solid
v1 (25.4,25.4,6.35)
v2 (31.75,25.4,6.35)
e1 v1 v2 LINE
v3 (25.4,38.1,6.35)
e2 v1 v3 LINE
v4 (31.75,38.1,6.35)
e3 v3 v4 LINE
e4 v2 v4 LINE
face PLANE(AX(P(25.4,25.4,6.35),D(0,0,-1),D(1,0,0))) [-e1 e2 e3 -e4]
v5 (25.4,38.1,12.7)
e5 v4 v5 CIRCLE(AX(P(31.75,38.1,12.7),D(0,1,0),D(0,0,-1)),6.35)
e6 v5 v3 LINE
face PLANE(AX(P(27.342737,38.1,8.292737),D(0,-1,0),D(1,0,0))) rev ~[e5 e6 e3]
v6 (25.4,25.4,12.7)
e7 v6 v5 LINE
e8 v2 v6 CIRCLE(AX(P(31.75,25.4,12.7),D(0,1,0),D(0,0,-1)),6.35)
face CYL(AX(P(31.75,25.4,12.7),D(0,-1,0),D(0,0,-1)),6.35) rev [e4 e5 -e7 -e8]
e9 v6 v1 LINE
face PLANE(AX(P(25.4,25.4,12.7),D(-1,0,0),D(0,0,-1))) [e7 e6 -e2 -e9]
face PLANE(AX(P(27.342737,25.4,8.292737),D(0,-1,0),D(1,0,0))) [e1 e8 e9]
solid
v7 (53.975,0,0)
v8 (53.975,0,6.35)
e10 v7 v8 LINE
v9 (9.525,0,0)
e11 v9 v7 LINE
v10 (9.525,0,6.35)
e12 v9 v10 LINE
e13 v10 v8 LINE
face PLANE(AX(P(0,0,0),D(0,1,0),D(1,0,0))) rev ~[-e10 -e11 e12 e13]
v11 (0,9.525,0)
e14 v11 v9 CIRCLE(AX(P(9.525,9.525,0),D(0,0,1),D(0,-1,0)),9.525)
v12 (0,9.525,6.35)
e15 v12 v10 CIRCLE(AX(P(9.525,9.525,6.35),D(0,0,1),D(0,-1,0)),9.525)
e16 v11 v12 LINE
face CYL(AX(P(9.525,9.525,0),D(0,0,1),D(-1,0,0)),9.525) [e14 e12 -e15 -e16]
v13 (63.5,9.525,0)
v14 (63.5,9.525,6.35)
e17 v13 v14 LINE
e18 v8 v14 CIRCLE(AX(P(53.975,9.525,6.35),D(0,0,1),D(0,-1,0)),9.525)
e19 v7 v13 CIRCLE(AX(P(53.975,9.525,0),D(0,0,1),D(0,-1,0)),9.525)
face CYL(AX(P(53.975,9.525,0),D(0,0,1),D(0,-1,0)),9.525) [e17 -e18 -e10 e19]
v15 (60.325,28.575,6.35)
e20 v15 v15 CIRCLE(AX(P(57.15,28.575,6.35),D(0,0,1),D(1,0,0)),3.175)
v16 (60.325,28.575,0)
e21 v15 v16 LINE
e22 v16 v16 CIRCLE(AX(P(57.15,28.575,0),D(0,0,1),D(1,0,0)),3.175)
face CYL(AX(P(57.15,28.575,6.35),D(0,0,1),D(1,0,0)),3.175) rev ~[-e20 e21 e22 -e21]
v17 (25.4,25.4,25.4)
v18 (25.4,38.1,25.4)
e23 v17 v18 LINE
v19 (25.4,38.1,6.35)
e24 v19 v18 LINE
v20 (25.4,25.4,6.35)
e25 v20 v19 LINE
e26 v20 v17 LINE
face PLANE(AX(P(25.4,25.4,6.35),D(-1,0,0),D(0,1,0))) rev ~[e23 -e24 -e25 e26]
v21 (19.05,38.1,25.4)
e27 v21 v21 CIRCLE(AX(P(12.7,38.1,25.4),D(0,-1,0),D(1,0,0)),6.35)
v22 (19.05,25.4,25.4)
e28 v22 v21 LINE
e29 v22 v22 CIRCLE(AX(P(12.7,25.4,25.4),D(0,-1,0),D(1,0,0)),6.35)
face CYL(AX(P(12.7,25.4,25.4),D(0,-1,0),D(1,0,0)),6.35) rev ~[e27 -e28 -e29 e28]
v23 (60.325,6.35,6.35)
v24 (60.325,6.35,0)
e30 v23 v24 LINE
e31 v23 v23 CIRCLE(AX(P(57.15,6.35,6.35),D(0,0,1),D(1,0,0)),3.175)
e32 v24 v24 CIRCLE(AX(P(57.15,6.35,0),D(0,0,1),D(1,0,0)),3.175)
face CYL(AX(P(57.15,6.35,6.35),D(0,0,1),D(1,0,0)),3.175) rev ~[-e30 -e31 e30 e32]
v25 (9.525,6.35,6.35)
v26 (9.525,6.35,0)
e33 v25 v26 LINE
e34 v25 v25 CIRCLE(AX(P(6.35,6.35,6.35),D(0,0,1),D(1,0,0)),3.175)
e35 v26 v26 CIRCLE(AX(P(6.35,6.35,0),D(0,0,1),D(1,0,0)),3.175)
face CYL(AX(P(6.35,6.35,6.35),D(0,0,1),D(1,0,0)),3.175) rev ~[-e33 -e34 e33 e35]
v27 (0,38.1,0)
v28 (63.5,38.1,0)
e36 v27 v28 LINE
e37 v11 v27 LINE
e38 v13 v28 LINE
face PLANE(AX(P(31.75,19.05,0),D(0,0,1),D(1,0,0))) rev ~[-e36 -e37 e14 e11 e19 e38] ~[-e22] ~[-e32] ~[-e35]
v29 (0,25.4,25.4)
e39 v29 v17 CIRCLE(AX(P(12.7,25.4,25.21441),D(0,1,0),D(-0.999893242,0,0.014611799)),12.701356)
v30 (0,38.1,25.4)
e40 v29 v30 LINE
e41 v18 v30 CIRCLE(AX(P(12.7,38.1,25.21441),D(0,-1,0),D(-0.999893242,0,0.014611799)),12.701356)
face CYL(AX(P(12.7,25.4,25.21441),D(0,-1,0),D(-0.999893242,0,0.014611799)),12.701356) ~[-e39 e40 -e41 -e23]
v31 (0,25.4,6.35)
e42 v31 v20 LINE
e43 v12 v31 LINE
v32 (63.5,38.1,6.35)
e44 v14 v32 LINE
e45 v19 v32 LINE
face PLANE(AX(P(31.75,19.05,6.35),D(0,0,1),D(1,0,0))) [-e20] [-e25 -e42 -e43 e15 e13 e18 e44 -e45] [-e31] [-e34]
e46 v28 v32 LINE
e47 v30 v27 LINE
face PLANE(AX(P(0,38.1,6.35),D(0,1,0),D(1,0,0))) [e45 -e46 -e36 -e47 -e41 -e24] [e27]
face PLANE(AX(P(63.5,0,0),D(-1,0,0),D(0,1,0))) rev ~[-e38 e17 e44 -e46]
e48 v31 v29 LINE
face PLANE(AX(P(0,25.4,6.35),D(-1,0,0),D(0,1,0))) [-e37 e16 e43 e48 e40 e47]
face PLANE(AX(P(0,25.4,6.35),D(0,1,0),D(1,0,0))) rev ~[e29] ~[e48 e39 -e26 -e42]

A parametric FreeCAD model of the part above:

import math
import FreeCAD as App
import Part
import Sketcher
Q = App.Units.Quantity


def edges_at(feature, points):
    """Names of the edges that pass closest to the given points."""
    edges = feature.Shape.Edges
    near = lambda p: min(range(len(edges)), key=lambda i: edges[i].distToShape(Part.Vertex(*p))[0])
    return sorted({f"Edge{near(p) + 1}" for p in points})


def add_polygon(sketch, points):
    """Adds a closed chain of lines whose ends are joined by coincident constraints."""
    first, n = sketch.GeometryCount, len(points)
    for a, b in zip(points, points[1:] + points[:1]):
        sketch.addGeometry(Part.LineSegment(App.Vector(*a, 0), App.Vector(*b, 0)), False)
    for i in range(n):
        sketch.addConstraint(Sketcher.Constraint("Coincident", first + i, 2, first + (i + 1) % n, 1))

doc = App.newDocument("Part")
body = doc.addObject("PartDesign::Body", "Body")

sketch1 = doc.addObject("Sketcher::SketchObject", "Sketch")
body.addObject(sketch1)
sketch1.AttachmentSupport = (doc.XY_Plane, [""])
sketch1.MapMode = "FlatFace"
add_polygon(sketch1, [(0, 38), (0, 0), (64, 0), (64, 38)])
sketch1.addConstraint([
    Sketcher.Constraint("Vertical", 0),
    Sketcher.Constraint("Horizontal", 1),
    Sketcher.Constraint("Vertical", 2),
    Sketcher.Constraint("Horizontal", 3),
    Sketcher.Constraint("Coincident", 0, 2, -1, 1),
    Sketcher.Constraint("DistanceX", 1, 1, 1, 2, Q("2.5 in")),
    Sketcher.Constraint("DistanceY", 0, 2, 0, 1, Q("1.5 in")),
])
pad1 = doc.addObject("PartDesign::Pad", "Pad")
body.addObject(pad1)
pad1.Profile = sketch1
pad1.Length = Q("0.25 in")

sketch2 = doc.addObject("Sketcher::SketchObject", "Sketch001")
body.addObject(sketch2)
sketch2.AttachmentSupport = (doc.XY_Plane, [""])
sketch2.MapMode = "FlatFace"
sketch2.AttachmentOffset = App.Placement(App.Vector(0, 0, 0.25 * 25.4), App.Rotation())
sketch2.addGeometry([
    Part.Circle(App.Vector(6.3, 6.3, 0), App.Vector(0, 0, 1), 3.2),
    Part.Circle(App.Vector(57.1, 6.3, 0), App.Vector(0, 0, 1), 3.2),
    Part.Circle(App.Vector(57.1, 28.6, 0), App.Vector(0, 0, 1), 3.2),
], False)
sketch2.addConstraint([
    Sketcher.Constraint("Equal", 0, 1),
    Sketcher.Constraint("Equal", 1, 2),
    Sketcher.Constraint("Horizontal", 0, 3, 1, 3),
    Sketcher.Constraint("Vertical", 1, 3, 2, 3),
    Sketcher.Constraint("Diameter", 0, Q("0.25 in")),
    Sketcher.Constraint("DistanceX", 0, 3, 1, 3, Q("2 in")),
    Sketcher.Constraint("DistanceX", -1, 1, 0, 3, Q("0.25 in")),
    Sketcher.Constraint("DistanceY", -1, 1, 0, 3, Q("0.25 in")),
    Sketcher.Constraint("DistanceY", -1, 1, 2, 3, Q("1.125 in")),
])
pocket1 = doc.addObject("PartDesign::Pocket", "Pocket")
body.addObject(pocket1)
pocket1.Profile = sketch2
pocket1.Length = Q("1 in")

sketch3 = doc.addObject("Sketcher::SketchObject", "Sketch002")
body.addObject(sketch3)
sketch3.AttachmentSupport = (doc.XY_Plane, [""])
sketch3.MapMode = "FlatFace"
sketch3.AttachmentOffset = App.Placement(App.Vector(0, 0, 0.25 * 25.4), App.Rotation())
add_polygon(sketch3, [(0, 38), (0, 25), (25, 25), (25, 38)])
sketch3.addConstraint([
    Sketcher.Constraint("Vertical", 0),
    Sketcher.Constraint("Horizontal", 1),
    Sketcher.Constraint("Vertical", 2),
    Sketcher.Constraint("Horizontal", 3),
    Sketcher.Constraint("PointOnObject", 0, 2, -2),
    Sketcher.Constraint("DistanceX", 1, 1, 1, 2, Q("1 in")),
    Sketcher.Constraint("DistanceY", 0, 2, 0, 1, Q("0.5 in")),
    Sketcher.Constraint("DistanceY", -1, 1, 0, 2, Q("1 in")),
])
pad2 = doc.addObject("PartDesign::Pad", "Pad001")
body.addObject(pad2)
pad2.Profile = sketch3
pad2.Length = Q("1.25 in")

sketch4 = doc.addObject("Sketcher::SketchObject", "Sketch003")
body.addObject(sketch4)
sketch4.AttachmentSupport = (doc.XZ_Plane, [""])
sketch4.MapMode = "FlatFace"
sketch4.AttachmentOffset = App.Placement(App.Vector(0, 0, -1 * 25.4), App.Rotation())
sketch4.addGeometry([
    Part.Circle(App.Vector(13, 25, 0), App.Vector(0, 0, 1), 6),
    Part.ArcOfCircle(Part.Circle(App.Vector(13, 25, 0), App.Vector(0, 0, 1), 13), math.radians(1), math.radians(179)),
    Part.LineSegment(App.Vector(25, 25, 0), App.Vector(25, 38, 0)),
    Part.LineSegment(App.Vector(25, 38, 0), App.Vector(0, 38, 0)),
    Part.LineSegment(App.Vector(0, 38, 0), App.Vector(0, 25, 0)),
], False)
sketch4.addConstraint([
    Sketcher.Constraint("Coincident", 1, 1, 2, 1),
    Sketcher.Constraint("Coincident", 2, 2, 3, 1),
    Sketcher.Constraint("Coincident", 3, 2, 4, 1),
    Sketcher.Constraint("Coincident", 4, 2, 1, 2),
    Sketcher.Constraint("Vertical", 2),
    Sketcher.Constraint("Horizontal", 3),
    Sketcher.Constraint("Vertical", 4),
    Sketcher.Constraint("PointOnObject", 3, 2, -2),
    Sketcher.Constraint("Horizontal", 0, 3, 1, 1),
    Sketcher.Constraint("Horizontal", 1, 1, 4, 2),
    Sketcher.Constraint("Vertical", 0, 3, 1, 3),
    Sketcher.Constraint("Diameter", 0, Q("0.5 in")),
    Sketcher.Constraint("DistanceX", 3, 2, 3, 1, Q("1 in")),
    Sketcher.Constraint("DistanceY", 2, 1, 2, 2, Q("0.5 in")),
    Sketcher.Constraint("DistanceY", -1, 1, 0, 3, Q("1 in")),
    Sketcher.Constraint("Radius", 1, 12.701356),
])
pocket2 = doc.addObject("PartDesign::Pocket", "Pocket001")
body.addObject(pocket2)
pocket2.Profile = sketch4
pocket2.Length = Q("1 in")
doc.recompute()

fillet = doc.addObject("PartDesign::Fillet", "Fillet")
body.addObject(fillet)
fillet.Base = (pocket2, edges_at(pocket2, [(63.5, 0, 3.175), (0, 0, 3.175)]))
fillet.Radius = Q("0.375 in")
body2 = doc.addObject("PartDesign::Body", "Body001")

sketch5 = doc.addObject("Sketcher::SketchObject", "Sketch004")
body2.addObject(sketch5)
sketch5.AttachmentSupport = (doc.getObject("XZ_Plane001"), [""])
sketch5.MapMode = "FlatFace"
sketch5.AttachmentOffset = App.Placement(App.Vector(0, 0, -1 * 25.4), App.Rotation())
sketch5.addGeometry([
    Part.LineSegment(App.Vector(25, 6, 0), App.Vector(32, 6, 0)),
    Part.ArcOfCircle(Part.Circle(App.Vector(32, 13, 0), App.Vector(0, 0, 1), 6), math.radians(180), math.radians(270)),
    Part.LineSegment(App.Vector(25, 13, 0), App.Vector(25, 6, 0)),
], False)
sketch5.addConstraint([
    Sketcher.Constraint("Tangent", 0, 2, 1, 2),
    Sketcher.Constraint("Tangent", 1, 1, 2, 1),
    Sketcher.Constraint("Coincident", 2, 2, 0, 1),
    Sketcher.Constraint("Horizontal", 0),
    Sketcher.Constraint("Vertical", 2),
    Sketcher.Constraint("Radius", 1, Q("0.25 in")),
    Sketcher.Constraint("DistanceX", -1, 1, 1, 1, Q("1 in")),
    Sketcher.Constraint("DistanceY", -1, 1, 1, 3, Q("0.5 in")),
])
pad3 = doc.addObject("PartDesign::Pad", "Pad002")
body2.addObject(pad3)
pad3.Profile = sketch5
pad3.Length = Q("0.5 in")
pad3.Reversed = True

doc.recompute()
